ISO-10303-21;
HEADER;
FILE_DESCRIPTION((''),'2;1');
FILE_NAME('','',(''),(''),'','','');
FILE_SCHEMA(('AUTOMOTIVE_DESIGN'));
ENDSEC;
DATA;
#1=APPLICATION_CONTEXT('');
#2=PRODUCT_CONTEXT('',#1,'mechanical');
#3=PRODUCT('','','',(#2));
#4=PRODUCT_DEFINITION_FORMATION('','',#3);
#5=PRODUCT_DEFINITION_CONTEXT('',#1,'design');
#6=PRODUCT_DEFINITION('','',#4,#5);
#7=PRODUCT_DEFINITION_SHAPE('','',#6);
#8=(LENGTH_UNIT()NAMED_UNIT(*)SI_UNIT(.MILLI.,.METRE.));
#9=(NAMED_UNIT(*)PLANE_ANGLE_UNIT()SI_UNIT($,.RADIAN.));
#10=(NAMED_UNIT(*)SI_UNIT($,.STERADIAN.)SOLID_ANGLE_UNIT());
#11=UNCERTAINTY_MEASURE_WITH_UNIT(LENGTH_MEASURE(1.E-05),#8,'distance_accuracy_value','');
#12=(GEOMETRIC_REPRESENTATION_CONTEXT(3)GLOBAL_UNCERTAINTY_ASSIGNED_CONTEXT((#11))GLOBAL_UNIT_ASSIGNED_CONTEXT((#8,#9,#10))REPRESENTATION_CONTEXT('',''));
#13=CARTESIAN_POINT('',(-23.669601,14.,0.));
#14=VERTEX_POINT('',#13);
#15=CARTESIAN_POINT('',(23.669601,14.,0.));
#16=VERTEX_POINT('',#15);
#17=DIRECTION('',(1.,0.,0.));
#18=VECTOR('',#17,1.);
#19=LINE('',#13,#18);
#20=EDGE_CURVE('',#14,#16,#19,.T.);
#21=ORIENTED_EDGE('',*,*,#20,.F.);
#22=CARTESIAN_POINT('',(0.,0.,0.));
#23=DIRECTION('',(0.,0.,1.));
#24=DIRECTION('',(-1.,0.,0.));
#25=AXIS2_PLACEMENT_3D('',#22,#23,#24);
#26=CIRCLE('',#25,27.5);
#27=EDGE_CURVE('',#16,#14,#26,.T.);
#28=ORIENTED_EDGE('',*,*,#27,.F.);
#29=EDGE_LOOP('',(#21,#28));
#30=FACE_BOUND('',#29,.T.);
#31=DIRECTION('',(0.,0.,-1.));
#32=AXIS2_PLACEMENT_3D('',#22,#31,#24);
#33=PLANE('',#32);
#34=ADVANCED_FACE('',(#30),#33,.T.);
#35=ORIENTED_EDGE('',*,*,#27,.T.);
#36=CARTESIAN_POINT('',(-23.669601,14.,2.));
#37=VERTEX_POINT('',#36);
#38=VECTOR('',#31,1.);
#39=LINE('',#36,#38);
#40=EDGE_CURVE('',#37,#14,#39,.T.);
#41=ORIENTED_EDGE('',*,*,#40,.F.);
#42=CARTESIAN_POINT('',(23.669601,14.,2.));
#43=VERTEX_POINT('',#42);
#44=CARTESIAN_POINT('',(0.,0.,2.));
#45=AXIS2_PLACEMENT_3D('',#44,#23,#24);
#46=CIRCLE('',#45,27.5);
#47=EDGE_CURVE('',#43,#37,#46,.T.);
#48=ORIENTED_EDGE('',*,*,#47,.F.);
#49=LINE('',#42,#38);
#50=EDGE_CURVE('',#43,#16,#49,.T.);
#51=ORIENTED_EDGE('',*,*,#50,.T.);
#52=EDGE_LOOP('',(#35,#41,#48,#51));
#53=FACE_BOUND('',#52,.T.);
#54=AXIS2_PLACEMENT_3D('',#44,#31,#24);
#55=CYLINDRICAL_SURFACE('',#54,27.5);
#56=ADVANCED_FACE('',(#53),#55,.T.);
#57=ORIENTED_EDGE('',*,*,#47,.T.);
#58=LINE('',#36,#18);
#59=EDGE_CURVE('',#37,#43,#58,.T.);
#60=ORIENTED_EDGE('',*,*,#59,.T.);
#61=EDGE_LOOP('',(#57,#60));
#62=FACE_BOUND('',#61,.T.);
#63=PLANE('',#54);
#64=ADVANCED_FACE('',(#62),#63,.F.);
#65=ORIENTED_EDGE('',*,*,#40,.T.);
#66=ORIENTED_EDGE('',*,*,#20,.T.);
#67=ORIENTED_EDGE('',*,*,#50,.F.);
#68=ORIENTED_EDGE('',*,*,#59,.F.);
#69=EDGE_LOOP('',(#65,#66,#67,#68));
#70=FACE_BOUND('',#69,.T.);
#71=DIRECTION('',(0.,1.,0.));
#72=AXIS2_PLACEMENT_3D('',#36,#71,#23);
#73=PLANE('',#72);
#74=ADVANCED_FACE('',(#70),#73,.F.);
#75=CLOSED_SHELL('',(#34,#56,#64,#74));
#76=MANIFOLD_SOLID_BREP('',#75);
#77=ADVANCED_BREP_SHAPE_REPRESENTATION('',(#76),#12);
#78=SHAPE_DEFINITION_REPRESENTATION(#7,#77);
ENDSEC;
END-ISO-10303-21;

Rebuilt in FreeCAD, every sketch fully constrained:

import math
import FreeCAD as App
import Part
import Sketcher

doc = App.newDocument("Part")
body = doc.addObject("PartDesign::Body", "Body")

sketch1 = body.newObject("Sketcher::SketchObject", "Sketch")
sketch1.AttachmentSupport = (doc.getObject("XY_Plane"), [""])
sketch1.MapMode = "FlatFace"
sketch1.addGeometry(Part.LineSegment(App.Vector(-24, 14, 0), App.Vector(24, 14, 0)), False)
sketch1.addGeometry(Part.ArcOfCircle(Part.Circle(App.Vector(0, 0, 0), App.Vector(0, 0, 1), 28), math.radians(31), math.radians(149)), False)
sketch1.addConstraint(Sketcher.Constraint("Coincident", 0, 1, 1, 2))
sketch1.addConstraint(Sketcher.Constraint("Coincident", 1, 1, 0, 2))
sketch1.addConstraint(Sketcher.Constraint("Horizontal", 0))
sketch1.addConstraint(Sketcher.Constraint("Coincident", 1, 3, -1, 1))
sketch1.addConstraint(Sketcher.Constraint("Radius", 1, 27.5))
sketch1.addConstraint(Sketcher.Constraint("DistanceY", -1, 1, 0, 1, 14.0))
pad1 = body.newObject("PartDesign::Pad", "Pad")
pad1.Profile = sketch1
pad1.Length = 2

doc.recompute()
